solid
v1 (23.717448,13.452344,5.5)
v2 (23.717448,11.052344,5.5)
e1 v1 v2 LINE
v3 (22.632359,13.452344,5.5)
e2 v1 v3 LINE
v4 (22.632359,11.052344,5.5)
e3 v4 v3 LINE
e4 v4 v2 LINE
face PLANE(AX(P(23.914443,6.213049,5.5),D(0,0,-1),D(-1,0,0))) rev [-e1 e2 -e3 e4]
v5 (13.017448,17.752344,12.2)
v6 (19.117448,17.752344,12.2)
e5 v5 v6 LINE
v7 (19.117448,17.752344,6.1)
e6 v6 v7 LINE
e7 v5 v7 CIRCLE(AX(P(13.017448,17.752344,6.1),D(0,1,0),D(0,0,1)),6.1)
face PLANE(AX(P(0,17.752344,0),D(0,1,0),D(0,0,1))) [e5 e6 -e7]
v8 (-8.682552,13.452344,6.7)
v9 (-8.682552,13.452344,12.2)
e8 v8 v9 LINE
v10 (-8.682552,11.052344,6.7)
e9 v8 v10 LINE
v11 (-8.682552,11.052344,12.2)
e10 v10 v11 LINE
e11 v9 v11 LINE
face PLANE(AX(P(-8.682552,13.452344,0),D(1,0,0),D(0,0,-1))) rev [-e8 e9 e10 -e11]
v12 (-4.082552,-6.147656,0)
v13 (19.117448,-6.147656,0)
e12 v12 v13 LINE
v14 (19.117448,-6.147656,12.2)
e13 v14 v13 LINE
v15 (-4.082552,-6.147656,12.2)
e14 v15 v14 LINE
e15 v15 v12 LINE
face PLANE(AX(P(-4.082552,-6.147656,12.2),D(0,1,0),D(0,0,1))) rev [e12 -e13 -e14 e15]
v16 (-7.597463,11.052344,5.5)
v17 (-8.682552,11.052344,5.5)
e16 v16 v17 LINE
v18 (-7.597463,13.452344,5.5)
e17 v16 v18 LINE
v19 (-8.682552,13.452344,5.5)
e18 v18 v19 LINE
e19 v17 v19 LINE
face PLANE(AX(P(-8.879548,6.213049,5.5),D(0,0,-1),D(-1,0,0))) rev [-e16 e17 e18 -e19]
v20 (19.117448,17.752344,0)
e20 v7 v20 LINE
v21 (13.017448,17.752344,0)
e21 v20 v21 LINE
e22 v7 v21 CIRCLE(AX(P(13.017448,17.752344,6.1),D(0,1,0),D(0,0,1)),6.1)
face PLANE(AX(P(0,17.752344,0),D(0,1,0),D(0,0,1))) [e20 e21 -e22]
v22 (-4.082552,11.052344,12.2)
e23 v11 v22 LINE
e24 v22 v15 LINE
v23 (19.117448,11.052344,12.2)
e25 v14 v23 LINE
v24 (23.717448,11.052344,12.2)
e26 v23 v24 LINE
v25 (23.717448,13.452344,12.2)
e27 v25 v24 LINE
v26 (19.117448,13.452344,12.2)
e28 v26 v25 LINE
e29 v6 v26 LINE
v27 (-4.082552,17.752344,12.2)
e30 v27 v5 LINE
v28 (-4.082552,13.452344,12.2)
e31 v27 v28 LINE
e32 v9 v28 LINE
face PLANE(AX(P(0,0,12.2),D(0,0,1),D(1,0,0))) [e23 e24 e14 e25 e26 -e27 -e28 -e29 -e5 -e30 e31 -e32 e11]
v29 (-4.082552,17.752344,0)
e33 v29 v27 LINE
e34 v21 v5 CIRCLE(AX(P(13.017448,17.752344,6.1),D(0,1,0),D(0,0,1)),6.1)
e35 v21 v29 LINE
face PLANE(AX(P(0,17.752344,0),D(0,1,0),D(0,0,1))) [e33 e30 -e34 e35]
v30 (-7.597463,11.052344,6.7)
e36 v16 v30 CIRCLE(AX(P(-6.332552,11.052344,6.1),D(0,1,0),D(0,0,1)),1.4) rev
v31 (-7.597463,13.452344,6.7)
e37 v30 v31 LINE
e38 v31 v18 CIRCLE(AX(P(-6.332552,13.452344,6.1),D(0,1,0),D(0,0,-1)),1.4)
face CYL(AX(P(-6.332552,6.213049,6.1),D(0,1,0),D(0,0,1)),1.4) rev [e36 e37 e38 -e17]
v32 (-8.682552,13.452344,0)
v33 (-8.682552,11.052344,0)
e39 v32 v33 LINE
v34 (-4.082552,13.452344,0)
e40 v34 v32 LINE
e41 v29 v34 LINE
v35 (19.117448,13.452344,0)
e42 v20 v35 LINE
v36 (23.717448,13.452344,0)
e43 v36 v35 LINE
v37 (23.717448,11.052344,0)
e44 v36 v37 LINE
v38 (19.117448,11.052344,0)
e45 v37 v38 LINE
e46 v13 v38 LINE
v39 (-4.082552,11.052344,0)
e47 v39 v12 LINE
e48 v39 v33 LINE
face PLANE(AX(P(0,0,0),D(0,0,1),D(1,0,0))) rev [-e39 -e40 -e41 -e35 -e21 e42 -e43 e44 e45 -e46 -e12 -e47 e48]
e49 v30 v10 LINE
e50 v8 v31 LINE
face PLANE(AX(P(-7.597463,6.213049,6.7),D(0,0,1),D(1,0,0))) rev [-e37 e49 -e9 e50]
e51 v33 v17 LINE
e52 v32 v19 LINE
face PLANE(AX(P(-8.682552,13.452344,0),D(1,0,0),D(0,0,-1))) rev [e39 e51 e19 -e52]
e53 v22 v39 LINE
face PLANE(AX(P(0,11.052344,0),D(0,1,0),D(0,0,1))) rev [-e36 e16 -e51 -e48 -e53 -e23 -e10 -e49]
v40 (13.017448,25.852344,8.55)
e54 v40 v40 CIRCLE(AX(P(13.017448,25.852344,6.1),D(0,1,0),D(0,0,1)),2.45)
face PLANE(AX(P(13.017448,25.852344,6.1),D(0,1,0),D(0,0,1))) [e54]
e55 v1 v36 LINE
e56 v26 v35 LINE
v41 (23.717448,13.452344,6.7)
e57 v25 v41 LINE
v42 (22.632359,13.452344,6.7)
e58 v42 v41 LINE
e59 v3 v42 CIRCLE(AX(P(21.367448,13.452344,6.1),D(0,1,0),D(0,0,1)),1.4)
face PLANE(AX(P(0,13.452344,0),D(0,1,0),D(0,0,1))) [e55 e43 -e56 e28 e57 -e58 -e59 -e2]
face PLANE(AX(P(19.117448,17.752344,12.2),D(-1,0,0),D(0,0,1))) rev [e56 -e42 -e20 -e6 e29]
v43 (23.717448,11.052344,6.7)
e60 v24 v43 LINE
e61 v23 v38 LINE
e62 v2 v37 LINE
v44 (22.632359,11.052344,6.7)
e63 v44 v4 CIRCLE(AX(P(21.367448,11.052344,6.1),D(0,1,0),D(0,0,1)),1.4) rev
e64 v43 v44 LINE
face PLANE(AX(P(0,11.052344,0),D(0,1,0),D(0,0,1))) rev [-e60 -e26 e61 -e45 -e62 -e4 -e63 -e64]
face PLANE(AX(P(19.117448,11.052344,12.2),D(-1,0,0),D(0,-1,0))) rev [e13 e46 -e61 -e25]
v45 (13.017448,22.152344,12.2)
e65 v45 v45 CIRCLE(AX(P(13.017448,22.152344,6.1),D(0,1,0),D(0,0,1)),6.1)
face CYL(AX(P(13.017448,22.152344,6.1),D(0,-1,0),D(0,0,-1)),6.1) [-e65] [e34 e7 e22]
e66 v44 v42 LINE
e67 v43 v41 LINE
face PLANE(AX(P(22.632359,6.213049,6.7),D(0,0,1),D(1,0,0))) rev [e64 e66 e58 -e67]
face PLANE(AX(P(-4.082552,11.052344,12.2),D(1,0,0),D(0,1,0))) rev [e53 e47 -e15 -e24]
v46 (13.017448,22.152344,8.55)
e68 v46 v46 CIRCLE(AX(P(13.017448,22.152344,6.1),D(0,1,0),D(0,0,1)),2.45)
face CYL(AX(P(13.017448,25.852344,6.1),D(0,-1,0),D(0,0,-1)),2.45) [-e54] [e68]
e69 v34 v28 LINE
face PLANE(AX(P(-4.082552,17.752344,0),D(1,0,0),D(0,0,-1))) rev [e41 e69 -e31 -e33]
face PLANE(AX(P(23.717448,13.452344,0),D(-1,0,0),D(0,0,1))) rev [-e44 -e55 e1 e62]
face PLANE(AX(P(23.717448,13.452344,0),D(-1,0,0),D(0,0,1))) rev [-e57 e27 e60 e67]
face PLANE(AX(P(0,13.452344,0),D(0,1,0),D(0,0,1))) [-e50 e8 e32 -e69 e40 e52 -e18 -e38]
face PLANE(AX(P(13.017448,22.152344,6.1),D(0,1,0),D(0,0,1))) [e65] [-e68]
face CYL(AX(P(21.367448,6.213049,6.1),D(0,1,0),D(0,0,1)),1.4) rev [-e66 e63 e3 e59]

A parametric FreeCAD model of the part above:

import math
import FreeCAD as App
import Part
import Sketcher
from FreeCAD import Vector
Q = App.Units.Quantity

doc = App.newDocument("Part")
params = doc.addObject("Spreadsheet::Sheet", "Params")
for row, (alias, value) in enumerate([
    ("sketch1_width", "23.2 mm"),
    ("sketch1_height", "17.2 mm"),
    ("pad1_length", "12.2 mm"),
    ("sketch2_width", "32.4 mm"),
    ("sketch2_height", "12.2 mm"),
    ("pad2_length", "2.4 mm"),
    ("sketch3_radius", "1.4 mm"),
    ("sketch3_height", "1.2 mm"),
    ("pocket1_length", "2.4 mm"),
    ("sketch4_width", "23.2 mm"),
    ("sketch4_height", "12.2 mm"),
    ("pad3_length", "4.3 mm"),
    ("sketch5_diameter", "12.2 mm"),
    ("pad4_length", "4.4 mm"),
    ("sketch6_diameter", "4.9 mm"),
    ("pad5_length", "3.7 mm"),
], start=1):
    params.set(f"A{row}", alias)
    params.set(f"B{row}", "=" + value)
    params.setAlias(f"B{row}", alias)

body = doc.addObject("PartDesign::Body", "Body")

# Sketch on XY plane
sketch1 = body.newObject("Sketcher::SketchObject", "Sketch")
sketch1.AttachmentSupport = (doc.getObject("XY_Plane"), [""])
sketch1.MapMode = "FlatFace"
sketch1.addGeometry(Part.LineSegment(Vector(-4, 11, 0), Vector(-4, -6, 0)), False)
sketch1.addGeometry(Part.LineSegment(Vector(-4, -6, 0), Vector(19, -6, 0)), False)
sketch1.addGeometry(Part.LineSegment(Vector(19, -6, 0), Vector(19, 11, 0)), False)
sketch1.addGeometry(Part.LineSegment(Vector(19, 11, 0), Vector(-4, 11, 0)), False)
sketch1.addConstraint(Sketcher.Constraint("Coincident", 0, 2, 1, 1))
sketch1.addConstraint(Sketcher.Constraint("Coincident", 1, 2, 2, 1))
sketch1.addConstraint(Sketcher.Constraint("Coincident", 2, 2, 3, 1))
sketch1.addConstraint(Sketcher.Constraint("Coincident", 3, 2, 0, 1))
sketch1.addConstraint(Sketcher.Constraint("Vertical", 0))
sketch1.addConstraint(Sketcher.Constraint("Horizontal", 1))
sketch1.addConstraint(Sketcher.Constraint("Vertical", 2))
sketch1.addConstraint(Sketcher.Constraint("Horizontal", 3))
sketch1.addConstraint(Sketcher.Constraint("DistanceX", 1, 1, 1, 2, Q("23.2 mm")))
sketch1.addConstraint(Sketcher.Constraint("DistanceY", 0, 2, 0, 1, Q("17.2 mm")))
sketch1.addConstraint(Sketcher.Constraint("DistanceX", 0, 2, -1, 1, Q("4.082552 mm")))
sketch1.addConstraint(Sketcher.Constraint("DistanceY", 0, 2, -1, 1, Q("6.147656 mm")))
sketch1.setExpression("Constraints[8]", "Params.sketch1_width")
sketch1.setExpression("Constraints[9]", "Params.sketch1_height")
pad1 = body.newObject("PartDesign::Pad", "Pad")
pad1.Profile = sketch1
pad1.setExpression("Length", "Params.pad1_length")

# Sketch on XZ plane
sketch2 = body.newObject("Sketcher::SketchObject", "Sketch001")
sketch2.AttachmentSupport = (doc.getObject("XZ_Plane"), [""])
sketch2.MapMode = "FlatFace"
sketch2.AttachmentOffset = App.Placement(Vector(0, 0, -11.052344), App.Rotation())
sketch2.addGeometry(Part.LineSegment(Vector(-9, 0, 0), Vector(-9, 12, 0)), False)
sketch2.addGeometry(Part.LineSegment(Vector(-9, 12, 0), Vector(24, 12, 0)), False)
sketch2.addGeometry(Part.LineSegment(Vector(24, 12, 0), Vector(24, 0, 0)), False)
sketch2.addGeometry(Part.LineSegment(Vector(24, 0, 0), Vector(-9, 0, 0)), False)
sketch2.addConstraint(Sketcher.Constraint("Coincident", 0, 2, 1, 1))
sketch2.addConstraint(Sketcher.Constraint("Coincident", 1, 2, 2, 1))
sketch2.addConstraint(Sketcher.Constraint("Coincident", 2, 2, 3, 1))
sketch2.addConstraint(Sketcher.Constraint("Coincident", 3, 2, 0, 1))
sketch2.addConstraint(Sketcher.Constraint("Vertical", 0))
sketch2.addConstraint(Sketcher.Constraint("Horizontal", 1))
sketch2.addConstraint(Sketcher.Constraint("Vertical", 2))
sketch2.addConstraint(Sketcher.Constraint("Horizontal", 3))
sketch2.addConstraint(Sketcher.Constraint("PointOnObject", 2, 2, -1))
sketch2.addConstraint(Sketcher.Constraint("DistanceX", 1, 1, 1, 2, Q("32.4 mm")))
sketch2.addConstraint(Sketcher.Constraint("DistanceY", 0, 1, 0, 2, Q("12.2 mm")))
sketch2.addConstraint(Sketcher.Constraint("DistanceX", 0, 2, -1, 1, Q("8.682552 mm")))
sketch2.setExpression("Constraints[9]", "Params.sketch2_width")
sketch2.setExpression("Constraints[10]", "Params.sketch2_height")
pad2 = body.newObject("PartDesign::Pad", "Pad001")
pad2.Profile = sketch2
pad2.setExpression("Length", "Params.pad2_length")
pad2.Reversed = True

# Sketch on XZ plane
sketch3 = body.newObject("Sketcher::SketchObject", "Sketch002")
sketch3.AttachmentSupport = (doc.getObject("XZ_Plane"), [""])
sketch3.MapMode = "FlatFace"
sketch3.AttachmentOffset = App.Placement(Vector(0, 0, -13.452344), App.Rotation())
sketch3.addGeometry(Part.LineSegment(Vector(22.6, 6.7, 0), Vector(23.9, 6.7, 0)), False)
sketch3.addGeometry(Part.LineSegment(Vector(23.9, 6.7, 0), Vector(23.9, 5.5, 0)), False)
sketch3.addGeometry(Part.LineSegment(Vector(23.9, 5.5, 0), Vector(22.6, 5.5, 0)), False)
sketch3.addGeometry(Part.ArcOfCircle(Part.Circle(Vector(21.4, 6.1, 0), Vector(0, 0, 1), 1.4), math.radians(25), math.radians(335)), False)
sketch3.addGeometry(Part.LineSegment(Vector(-7.6, 5.5, 0), Vector(-8.9, 5.5, 0)), False)
sketch3.addGeometry(Part.LineSegment(Vector(-8.9, 5.5, 0), Vector(-8.9, 6.7, 0)), False)
sketch3.addGeometry(Part.LineSegment(Vector(-8.9, 6.7, 0), Vector(-7.6, 6.7, 0)), False)
sketch3.addGeometry(Part.ArcOfCircle(Part.Circle(Vector(-6.3, 6.1, 0), Vector(0, 0, 1), 1.4), math.radians(-155), math.radians(155)), False)
sketch3.addConstraint(Sketcher.Constraint("Coincident", 0, 2, 1, 1))
sketch3.addConstraint(Sketcher.Constraint("Coincident", 1, 2, 2, 1))
sketch3.addConstraint(Sketcher.Constraint("Coincident", 2, 2, 3, 2))
sketch3.addConstraint(Sketcher.Constraint("Coincident", 3, 1, 0, 1))
sketch3.addConstraint(Sketcher.Constraint("Coincident", 4, 2, 5, 1))
sketch3.addConstraint(Sketcher.Constraint("Coincident", 5, 2, 6, 1))
sketch3.addConstraint(Sketcher.Constraint("Coincident", 6, 2, 7, 2))
sketch3.addConstraint(Sketcher.Constraint("Coincident", 7, 1, 4, 1))
sketch3.addConstraint(Sketcher.Constraint("Horizontal", 0))
sketch3.addConstraint(Sketcher.Constraint("Vertical", 1))
sketch3.addConstraint(Sketcher.Constraint("Horizontal", 2))
sketch3.addConstraint(Sketcher.Constraint("Horizontal", 4))
sketch3.addConstraint(Sketcher.Constraint("Vertical", 5))
sketch3.addConstraint(Sketcher.Constraint("Horizontal", 6))
sketch3.addConstraint(Sketcher.Constraint("Equal", 3, 7))
sketch3.addConstraint(Sketcher.Constraint("Horizontal", 3, 3, 7, 3))
sketch3.addConstraint(Sketcher.Constraint("Horizontal", 2, 2, 4, 2))
sketch3.addConstraint(Sketcher.Constraint("Horizontal", 3, 1, 5, 2))
sketch3.addConstraint(Sketcher.Constraint("Vertical", 2, 2, 3, 1))
sketch3.addConstraint(Sketcher.Constraint("Equal", 2, 4))
sketch3.addConstraint(Sketcher.Constraint("Radius", 3, Q("1.4 mm")))
sketch3.addConstraint(Sketcher.Constraint("DistanceY", 1, 2, 1, 1, Q("1.2 mm")))
sketch3.addConstraint(Sketcher.Constraint("DistanceY", -1, 1, 3, 3, Q("6.1 mm")))
sketch3.addConstraint(Sketcher.Constraint("DistanceX", 7, 3, 3, 3, Q("27.7 mm")))
sketch3.addConstraint(Sketcher.Constraint("DistanceX", 0, 1, 0, 2, Q("1.282084 mm")))
sketch3.addConstraint(Sketcher.Constraint("DistanceX", -1, 1, 2, 2, Q("22.632359 mm")))
sketch3.setExpression("Constraints[20]", "Params.sketch3_radius")
sketch3.setExpression("Constraints[21]", "Params.sketch3_height")
pocket1 = body.newObject("PartDesign::Pocket", "Pocket")
pocket1.Profile = sketch3
pocket1.setExpression("Length", "Params.pocket1_length")
pocket1.Reversed = True

# Sketch on XZ plane
sketch4 = body.newObject("Sketcher::SketchObject", "Sketch003")
sketch4.AttachmentSupport = (doc.getObject("XZ_Plane"), [""])
sketch4.MapMode = "FlatFace"
sketch4.AttachmentOffset = App.Placement(Vector(0, 0, -13.452344), App.Rotation())
sketch4.addGeometry(Part.LineSegment(Vector(-4, 0, 0), Vector(-4, 12, 0)), False)
sketch4.addGeometry(Part.LineSegment(Vector(-4, 12, 0), Vector(19, 12, 0)), False)
sketch4.addGeometry(Part.LineSegment(Vector(19, 12, 0), Vector(19, 0, 0)), False)
sketch4.addGeometry(Part.LineSegment(Vector(19, 0, 0), Vector(-4, 0, 0)), False)
sketch4.addConstraint(Sketcher.Constraint("Coincident", 0, 2, 1, 1))
sketch4.addConstraint(Sketcher.Constraint("Coincident", 1, 2, 2, 1))
sketch4.addConstraint(Sketcher.Constraint("Coincident", 2, 2, 3, 1))
sketch4.addConstraint(Sketcher.Constraint("Coincident", 3, 2, 0, 1))
sketch4.addConstraint(Sketcher.Constraint("Vertical", 0))
sketch4.addConstraint(Sketcher.Constraint("Horizontal", 1))
sketch4.addConstraint(Sketcher.Constraint("Vertical", 2))
sketch4.addConstraint(Sketcher.Constraint("Horizontal", 3))
sketch4.addConstraint(Sketcher.Constraint("PointOnObject", 2, 2, -1))
sketch4.addConstraint(Sketcher.Constraint("DistanceX", 1, 1, 1, 2, Q("23.2 mm")))
sketch4.addConstraint(Sketcher.Constraint("DistanceY", 0, 1, 0, 2, Q("12.2 mm")))
sketch4.addConstraint(Sketcher.Constraint("DistanceX", 0, 2, -1, 1, Q("4.082552 mm")))
sketch4.setExpression("Constraints[9]", "Params.sketch4_width")
sketch4.setExpression("Constraints[10]", "Params.sketch4_height")
pad3 = body.newObject("PartDesign::Pad", "Pad002")
pad3.Profile = sketch4
pad3.setExpression("Length", "Params.pad3_length")
pad3.Reversed = True

# Sketch on XZ plane
sketch5 = body.newObject("Sketcher::SketchObject", "Sketch004")
sketch5.AttachmentSupport = (doc.getObject("XZ_Plane"), [""])
sketch5.MapMode = "FlatFace"
sketch5.AttachmentOffset = App.Placement(Vector(0, 0, -17.752344), App.Rotation())
sketch5.addGeometry(Part.Circle(Vector(13, 6, 0), Vector(0, 0, 1), 6), False)
sketch5.addConstraint(Sketcher.Constraint("Diameter", 0, Q("12.2 mm")))
sketch5.addConstraint(Sketcher.Constraint("DistanceY", -1, 1, 0, 3, Q("6.1 mm")))
sketch5.addConstraint(Sketcher.Constraint("DistanceX", -1, 1, 0, 3, Q("13.017448 mm")))
sketch5.setExpression("Constraints[0]", "Params.sketch5_diameter")
pad4 = body.newObject("PartDesign::Pad", "Pad003")
pad4.Profile = sketch5
pad4.setExpression("Length", "Params.pad4_length")
pad4.Reversed = True

# Sketch on XZ plane
sketch6 = body.newObject("Sketcher::SketchObject", "Sketch005")
sketch6.AttachmentSupport = (doc.getObject("XZ_Plane"), [""])
sketch6.MapMode = "FlatFace"
sketch6.AttachmentOffset = App.Placement(Vector(0, 0, -22.152344), App.Rotation())
sketch6.addGeometry(Part.Circle(Vector(13, 6.1, 0), Vector(0, 0, 1), 2.5), False)
sketch6.addConstraint(Sketcher.Constraint("Diameter", 0, Q("4.9 mm")))
sketch6.addConstraint(Sketcher.Constraint("DistanceY", -1, 1, 0, 3, Q("6.1 mm")))
sketch6.addConstraint(Sketcher.Constraint("DistanceX", -1, 1, 0, 3, Q("13.017448 mm")))
sketch6.setExpression("Constraints[0]", "Params.sketch6_diameter")
pad5 = body.newObject("PartDesign::Pad", "Pad004")
pad5.Profile = sketch6
pad5.setExpression("Length", "Params.pad5_length")
pad5.Reversed = True

doc.recompute()
